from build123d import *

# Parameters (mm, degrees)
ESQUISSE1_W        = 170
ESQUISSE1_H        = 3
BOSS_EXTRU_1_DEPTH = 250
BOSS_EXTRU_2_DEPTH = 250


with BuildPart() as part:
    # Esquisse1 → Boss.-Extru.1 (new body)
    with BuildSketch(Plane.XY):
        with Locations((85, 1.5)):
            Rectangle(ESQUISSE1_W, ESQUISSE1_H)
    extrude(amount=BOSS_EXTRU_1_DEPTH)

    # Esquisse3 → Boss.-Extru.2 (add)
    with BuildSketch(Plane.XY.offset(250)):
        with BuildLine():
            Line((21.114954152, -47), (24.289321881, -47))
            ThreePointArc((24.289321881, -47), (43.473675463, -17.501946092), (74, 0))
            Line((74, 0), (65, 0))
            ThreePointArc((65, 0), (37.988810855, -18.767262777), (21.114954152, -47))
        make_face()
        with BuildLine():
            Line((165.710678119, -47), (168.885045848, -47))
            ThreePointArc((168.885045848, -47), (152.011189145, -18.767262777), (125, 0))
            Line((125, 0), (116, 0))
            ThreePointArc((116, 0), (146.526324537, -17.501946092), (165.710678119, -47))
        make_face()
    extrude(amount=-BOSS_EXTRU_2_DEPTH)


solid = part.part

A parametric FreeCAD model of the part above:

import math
import FreeCAD as App
import Part
import Sketcher


def add_polygon(sketch, points):
    """Adds a closed chain of lines whose ends are joined by coincident constraints."""
    first, n = sketch.GeometryCount, len(points)
    for a, b in zip(points, points[1:] + points[:1]):
        sketch.addGeometry(Part.LineSegment(App.Vector(*a, 0), App.Vector(*b, 0)), False)
    for i in range(n):
        sketch.addConstraint(Sketcher.Constraint("Coincident", first + i, 2, first + (i + 1) % n, 1))

doc = App.newDocument("Part")
body = doc.addObject("PartDesign::Body", "Body")

sketch1 = doc.addObject("Sketcher::SketchObject", "Sketch")
body.addObject(sketch1)
sketch1.AttachmentSupport = (doc.XY_Plane, [""])
sketch1.MapMode = "FlatFace"
add_polygon(sketch1, [(0, 3), (0, 0), (170, 0), (170, 3)])
sketch1.addConstraint(Sketcher.Constraint("Vertical", 0))
sketch1.addConstraint(Sketcher.Constraint("Horizontal", 1))
sketch1.addConstraint(Sketcher.Constraint("Vertical", 2))
sketch1.addConstraint(Sketcher.Constraint("Horizontal", 3))
sketch1.addConstraint(Sketcher.Constraint("Coincident", 0, 2, -1, 1))
sketch1.addConstraint(Sketcher.Constraint("DistanceX", 1, 1, 1, 2, 170.0))
sketch1.addConstraint(Sketcher.Constraint("DistanceY", 0, 2, 0, 1, 3.0))
pad1 = doc.addObject("PartDesign::Pad", "Pad")
body.addObject(pad1)
pad1.Profile = sketch1
pad1.Length = 250

sketch2 = doc.addObject("Sketcher::SketchObject", "Sketch001")
body.addObject(sketch2)
sketch2.AttachmentSupport = (doc.XY_Plane, [""])
sketch2.MapMode = "FlatFace"
sketch2.AttachmentOffset = App.Placement(App.Vector(0, 0, 250), App.Rotation())
sketch2.addGeometry(Part.LineSegment(App.Vector(21.1, -47, 0), App.Vector(24.3, -47, 0)), False)
sketch2.addGeometry(Part.ArcOfCircle(Part.Circle(App.Vector(95, -72, 0), App.Vector(0, 0, 1), 75), math.radians(106), math.radians(161)), False)
sketch2.addGeometry(Part.LineSegment(App.Vector(74, 0, 0), App.Vector(65, 0, 0)), False)
sketch2.addGeometry(Part.ArcOfCircle(Part.Circle(App.Vector(95, -72, 0), App.Vector(0, 0, 1), 78), math.radians(113), math.radians(161)), False)
sketch2.addGeometry(Part.LineSegment(App.Vector(165.7, -47, 0), App.Vector(168.9, -47, 0)), False)
sketch2.addGeometry(Part.ArcOfCircle(Part.Circle(App.Vector(95, -72, 0), App.Vector(0, 0, 1), 78), math.radians(19), math.radians(67)), False)
sketch2.addGeometry(Part.LineSegment(App.Vector(125, 0, 0), App.Vector(116, 0, 0)), False)
sketch2.addGeometry(Part.ArcOfCircle(Part.Circle(App.Vector(95, -72, 0), App.Vector(0, 0, 1), 75), math.radians(19), math.radians(74)), False)
sketch2.addConstraint(Sketcher.Constraint("Coincident", 0, 2, 1, 2))
sketch2.addConstraint(Sketcher.Constraint("Coincident", 1, 1, 2, 1))
sketch2.addConstraint(Sketcher.Constraint("Coincident", 2, 2, 3, 1))
sketch2.addConstraint(Sketcher.Constraint("Coincident", 3, 2, 0, 1))
sketch2.addConstraint(Sketcher.Constraint("Coincident", 4, 2, 5, 1))
sketch2.addConstraint(Sketcher.Constraint("Coincident", 5, 2, 6, 1))
sketch2.addConstraint(Sketcher.Constraint("Coincident", 6, 2, 7, 2))
sketch2.addConstraint(Sketcher.Constraint("Coincident", 7, 1, 4, 1))
sketch2.addConstraint(Sketcher.Constraint("Horizontal", 0))
sketch2.addConstraint(Sketcher.Constraint("Horizontal", 2))
sketch2.addConstraint(Sketcher.Constraint("Horizontal", 4))
sketch2.addConstraint(Sketcher.Constraint("Horizontal", 6))
sketch2.addConstraint(Sketcher.Constraint("Coincident", 3, 3, 1, 3))
sketch2.addConstraint(Sketcher.Constraint("Coincident", 5, 3, 1, 3))
sketch2.addConstraint(Sketcher.Constraint("Coincident", 7, 3, 1, 3))
sketch2.addConstraint(Sketcher.Constraint("Equal", 3, 5))
sketch2.addConstraint(Sketcher.Constraint("Equal", 1, 7))
sketch2.addConstraint(Sketcher.Constraint("PointOnObject", 1, 1, -1))
sketch2.addConstraint(Sketcher.Constraint("PointOnObject", 5, 2, -1))
sketch2.addConstraint(Sketcher.Constraint("Horizontal", 3, 2, 4, 2))
sketch2.addConstraint(Sketcher.Constraint("Radius", 1, 75.0))
sketch2.addConstraint(Sketcher.Constraint("Radius", 3, 78.0))
sketch2.addConstraint(Sketcher.Constraint("DistanceX", 2, 2, 2, 1, 9.0))
sketch2.addConstraint(Sketcher.Constraint("DistanceX", -1, 1, 1, 3, 95.0))
sketch2.addConstraint(Sketcher.Constraint("DistanceY", 0, 2, -1, 1, 47.0))
pad2 = doc.addObject("PartDesign::Pad", "Pad001")
body.addObject(pad2)
pad2.Profile = sketch2
pad2.Length = 250
pad2.Reversed = True

doc.recompute()
